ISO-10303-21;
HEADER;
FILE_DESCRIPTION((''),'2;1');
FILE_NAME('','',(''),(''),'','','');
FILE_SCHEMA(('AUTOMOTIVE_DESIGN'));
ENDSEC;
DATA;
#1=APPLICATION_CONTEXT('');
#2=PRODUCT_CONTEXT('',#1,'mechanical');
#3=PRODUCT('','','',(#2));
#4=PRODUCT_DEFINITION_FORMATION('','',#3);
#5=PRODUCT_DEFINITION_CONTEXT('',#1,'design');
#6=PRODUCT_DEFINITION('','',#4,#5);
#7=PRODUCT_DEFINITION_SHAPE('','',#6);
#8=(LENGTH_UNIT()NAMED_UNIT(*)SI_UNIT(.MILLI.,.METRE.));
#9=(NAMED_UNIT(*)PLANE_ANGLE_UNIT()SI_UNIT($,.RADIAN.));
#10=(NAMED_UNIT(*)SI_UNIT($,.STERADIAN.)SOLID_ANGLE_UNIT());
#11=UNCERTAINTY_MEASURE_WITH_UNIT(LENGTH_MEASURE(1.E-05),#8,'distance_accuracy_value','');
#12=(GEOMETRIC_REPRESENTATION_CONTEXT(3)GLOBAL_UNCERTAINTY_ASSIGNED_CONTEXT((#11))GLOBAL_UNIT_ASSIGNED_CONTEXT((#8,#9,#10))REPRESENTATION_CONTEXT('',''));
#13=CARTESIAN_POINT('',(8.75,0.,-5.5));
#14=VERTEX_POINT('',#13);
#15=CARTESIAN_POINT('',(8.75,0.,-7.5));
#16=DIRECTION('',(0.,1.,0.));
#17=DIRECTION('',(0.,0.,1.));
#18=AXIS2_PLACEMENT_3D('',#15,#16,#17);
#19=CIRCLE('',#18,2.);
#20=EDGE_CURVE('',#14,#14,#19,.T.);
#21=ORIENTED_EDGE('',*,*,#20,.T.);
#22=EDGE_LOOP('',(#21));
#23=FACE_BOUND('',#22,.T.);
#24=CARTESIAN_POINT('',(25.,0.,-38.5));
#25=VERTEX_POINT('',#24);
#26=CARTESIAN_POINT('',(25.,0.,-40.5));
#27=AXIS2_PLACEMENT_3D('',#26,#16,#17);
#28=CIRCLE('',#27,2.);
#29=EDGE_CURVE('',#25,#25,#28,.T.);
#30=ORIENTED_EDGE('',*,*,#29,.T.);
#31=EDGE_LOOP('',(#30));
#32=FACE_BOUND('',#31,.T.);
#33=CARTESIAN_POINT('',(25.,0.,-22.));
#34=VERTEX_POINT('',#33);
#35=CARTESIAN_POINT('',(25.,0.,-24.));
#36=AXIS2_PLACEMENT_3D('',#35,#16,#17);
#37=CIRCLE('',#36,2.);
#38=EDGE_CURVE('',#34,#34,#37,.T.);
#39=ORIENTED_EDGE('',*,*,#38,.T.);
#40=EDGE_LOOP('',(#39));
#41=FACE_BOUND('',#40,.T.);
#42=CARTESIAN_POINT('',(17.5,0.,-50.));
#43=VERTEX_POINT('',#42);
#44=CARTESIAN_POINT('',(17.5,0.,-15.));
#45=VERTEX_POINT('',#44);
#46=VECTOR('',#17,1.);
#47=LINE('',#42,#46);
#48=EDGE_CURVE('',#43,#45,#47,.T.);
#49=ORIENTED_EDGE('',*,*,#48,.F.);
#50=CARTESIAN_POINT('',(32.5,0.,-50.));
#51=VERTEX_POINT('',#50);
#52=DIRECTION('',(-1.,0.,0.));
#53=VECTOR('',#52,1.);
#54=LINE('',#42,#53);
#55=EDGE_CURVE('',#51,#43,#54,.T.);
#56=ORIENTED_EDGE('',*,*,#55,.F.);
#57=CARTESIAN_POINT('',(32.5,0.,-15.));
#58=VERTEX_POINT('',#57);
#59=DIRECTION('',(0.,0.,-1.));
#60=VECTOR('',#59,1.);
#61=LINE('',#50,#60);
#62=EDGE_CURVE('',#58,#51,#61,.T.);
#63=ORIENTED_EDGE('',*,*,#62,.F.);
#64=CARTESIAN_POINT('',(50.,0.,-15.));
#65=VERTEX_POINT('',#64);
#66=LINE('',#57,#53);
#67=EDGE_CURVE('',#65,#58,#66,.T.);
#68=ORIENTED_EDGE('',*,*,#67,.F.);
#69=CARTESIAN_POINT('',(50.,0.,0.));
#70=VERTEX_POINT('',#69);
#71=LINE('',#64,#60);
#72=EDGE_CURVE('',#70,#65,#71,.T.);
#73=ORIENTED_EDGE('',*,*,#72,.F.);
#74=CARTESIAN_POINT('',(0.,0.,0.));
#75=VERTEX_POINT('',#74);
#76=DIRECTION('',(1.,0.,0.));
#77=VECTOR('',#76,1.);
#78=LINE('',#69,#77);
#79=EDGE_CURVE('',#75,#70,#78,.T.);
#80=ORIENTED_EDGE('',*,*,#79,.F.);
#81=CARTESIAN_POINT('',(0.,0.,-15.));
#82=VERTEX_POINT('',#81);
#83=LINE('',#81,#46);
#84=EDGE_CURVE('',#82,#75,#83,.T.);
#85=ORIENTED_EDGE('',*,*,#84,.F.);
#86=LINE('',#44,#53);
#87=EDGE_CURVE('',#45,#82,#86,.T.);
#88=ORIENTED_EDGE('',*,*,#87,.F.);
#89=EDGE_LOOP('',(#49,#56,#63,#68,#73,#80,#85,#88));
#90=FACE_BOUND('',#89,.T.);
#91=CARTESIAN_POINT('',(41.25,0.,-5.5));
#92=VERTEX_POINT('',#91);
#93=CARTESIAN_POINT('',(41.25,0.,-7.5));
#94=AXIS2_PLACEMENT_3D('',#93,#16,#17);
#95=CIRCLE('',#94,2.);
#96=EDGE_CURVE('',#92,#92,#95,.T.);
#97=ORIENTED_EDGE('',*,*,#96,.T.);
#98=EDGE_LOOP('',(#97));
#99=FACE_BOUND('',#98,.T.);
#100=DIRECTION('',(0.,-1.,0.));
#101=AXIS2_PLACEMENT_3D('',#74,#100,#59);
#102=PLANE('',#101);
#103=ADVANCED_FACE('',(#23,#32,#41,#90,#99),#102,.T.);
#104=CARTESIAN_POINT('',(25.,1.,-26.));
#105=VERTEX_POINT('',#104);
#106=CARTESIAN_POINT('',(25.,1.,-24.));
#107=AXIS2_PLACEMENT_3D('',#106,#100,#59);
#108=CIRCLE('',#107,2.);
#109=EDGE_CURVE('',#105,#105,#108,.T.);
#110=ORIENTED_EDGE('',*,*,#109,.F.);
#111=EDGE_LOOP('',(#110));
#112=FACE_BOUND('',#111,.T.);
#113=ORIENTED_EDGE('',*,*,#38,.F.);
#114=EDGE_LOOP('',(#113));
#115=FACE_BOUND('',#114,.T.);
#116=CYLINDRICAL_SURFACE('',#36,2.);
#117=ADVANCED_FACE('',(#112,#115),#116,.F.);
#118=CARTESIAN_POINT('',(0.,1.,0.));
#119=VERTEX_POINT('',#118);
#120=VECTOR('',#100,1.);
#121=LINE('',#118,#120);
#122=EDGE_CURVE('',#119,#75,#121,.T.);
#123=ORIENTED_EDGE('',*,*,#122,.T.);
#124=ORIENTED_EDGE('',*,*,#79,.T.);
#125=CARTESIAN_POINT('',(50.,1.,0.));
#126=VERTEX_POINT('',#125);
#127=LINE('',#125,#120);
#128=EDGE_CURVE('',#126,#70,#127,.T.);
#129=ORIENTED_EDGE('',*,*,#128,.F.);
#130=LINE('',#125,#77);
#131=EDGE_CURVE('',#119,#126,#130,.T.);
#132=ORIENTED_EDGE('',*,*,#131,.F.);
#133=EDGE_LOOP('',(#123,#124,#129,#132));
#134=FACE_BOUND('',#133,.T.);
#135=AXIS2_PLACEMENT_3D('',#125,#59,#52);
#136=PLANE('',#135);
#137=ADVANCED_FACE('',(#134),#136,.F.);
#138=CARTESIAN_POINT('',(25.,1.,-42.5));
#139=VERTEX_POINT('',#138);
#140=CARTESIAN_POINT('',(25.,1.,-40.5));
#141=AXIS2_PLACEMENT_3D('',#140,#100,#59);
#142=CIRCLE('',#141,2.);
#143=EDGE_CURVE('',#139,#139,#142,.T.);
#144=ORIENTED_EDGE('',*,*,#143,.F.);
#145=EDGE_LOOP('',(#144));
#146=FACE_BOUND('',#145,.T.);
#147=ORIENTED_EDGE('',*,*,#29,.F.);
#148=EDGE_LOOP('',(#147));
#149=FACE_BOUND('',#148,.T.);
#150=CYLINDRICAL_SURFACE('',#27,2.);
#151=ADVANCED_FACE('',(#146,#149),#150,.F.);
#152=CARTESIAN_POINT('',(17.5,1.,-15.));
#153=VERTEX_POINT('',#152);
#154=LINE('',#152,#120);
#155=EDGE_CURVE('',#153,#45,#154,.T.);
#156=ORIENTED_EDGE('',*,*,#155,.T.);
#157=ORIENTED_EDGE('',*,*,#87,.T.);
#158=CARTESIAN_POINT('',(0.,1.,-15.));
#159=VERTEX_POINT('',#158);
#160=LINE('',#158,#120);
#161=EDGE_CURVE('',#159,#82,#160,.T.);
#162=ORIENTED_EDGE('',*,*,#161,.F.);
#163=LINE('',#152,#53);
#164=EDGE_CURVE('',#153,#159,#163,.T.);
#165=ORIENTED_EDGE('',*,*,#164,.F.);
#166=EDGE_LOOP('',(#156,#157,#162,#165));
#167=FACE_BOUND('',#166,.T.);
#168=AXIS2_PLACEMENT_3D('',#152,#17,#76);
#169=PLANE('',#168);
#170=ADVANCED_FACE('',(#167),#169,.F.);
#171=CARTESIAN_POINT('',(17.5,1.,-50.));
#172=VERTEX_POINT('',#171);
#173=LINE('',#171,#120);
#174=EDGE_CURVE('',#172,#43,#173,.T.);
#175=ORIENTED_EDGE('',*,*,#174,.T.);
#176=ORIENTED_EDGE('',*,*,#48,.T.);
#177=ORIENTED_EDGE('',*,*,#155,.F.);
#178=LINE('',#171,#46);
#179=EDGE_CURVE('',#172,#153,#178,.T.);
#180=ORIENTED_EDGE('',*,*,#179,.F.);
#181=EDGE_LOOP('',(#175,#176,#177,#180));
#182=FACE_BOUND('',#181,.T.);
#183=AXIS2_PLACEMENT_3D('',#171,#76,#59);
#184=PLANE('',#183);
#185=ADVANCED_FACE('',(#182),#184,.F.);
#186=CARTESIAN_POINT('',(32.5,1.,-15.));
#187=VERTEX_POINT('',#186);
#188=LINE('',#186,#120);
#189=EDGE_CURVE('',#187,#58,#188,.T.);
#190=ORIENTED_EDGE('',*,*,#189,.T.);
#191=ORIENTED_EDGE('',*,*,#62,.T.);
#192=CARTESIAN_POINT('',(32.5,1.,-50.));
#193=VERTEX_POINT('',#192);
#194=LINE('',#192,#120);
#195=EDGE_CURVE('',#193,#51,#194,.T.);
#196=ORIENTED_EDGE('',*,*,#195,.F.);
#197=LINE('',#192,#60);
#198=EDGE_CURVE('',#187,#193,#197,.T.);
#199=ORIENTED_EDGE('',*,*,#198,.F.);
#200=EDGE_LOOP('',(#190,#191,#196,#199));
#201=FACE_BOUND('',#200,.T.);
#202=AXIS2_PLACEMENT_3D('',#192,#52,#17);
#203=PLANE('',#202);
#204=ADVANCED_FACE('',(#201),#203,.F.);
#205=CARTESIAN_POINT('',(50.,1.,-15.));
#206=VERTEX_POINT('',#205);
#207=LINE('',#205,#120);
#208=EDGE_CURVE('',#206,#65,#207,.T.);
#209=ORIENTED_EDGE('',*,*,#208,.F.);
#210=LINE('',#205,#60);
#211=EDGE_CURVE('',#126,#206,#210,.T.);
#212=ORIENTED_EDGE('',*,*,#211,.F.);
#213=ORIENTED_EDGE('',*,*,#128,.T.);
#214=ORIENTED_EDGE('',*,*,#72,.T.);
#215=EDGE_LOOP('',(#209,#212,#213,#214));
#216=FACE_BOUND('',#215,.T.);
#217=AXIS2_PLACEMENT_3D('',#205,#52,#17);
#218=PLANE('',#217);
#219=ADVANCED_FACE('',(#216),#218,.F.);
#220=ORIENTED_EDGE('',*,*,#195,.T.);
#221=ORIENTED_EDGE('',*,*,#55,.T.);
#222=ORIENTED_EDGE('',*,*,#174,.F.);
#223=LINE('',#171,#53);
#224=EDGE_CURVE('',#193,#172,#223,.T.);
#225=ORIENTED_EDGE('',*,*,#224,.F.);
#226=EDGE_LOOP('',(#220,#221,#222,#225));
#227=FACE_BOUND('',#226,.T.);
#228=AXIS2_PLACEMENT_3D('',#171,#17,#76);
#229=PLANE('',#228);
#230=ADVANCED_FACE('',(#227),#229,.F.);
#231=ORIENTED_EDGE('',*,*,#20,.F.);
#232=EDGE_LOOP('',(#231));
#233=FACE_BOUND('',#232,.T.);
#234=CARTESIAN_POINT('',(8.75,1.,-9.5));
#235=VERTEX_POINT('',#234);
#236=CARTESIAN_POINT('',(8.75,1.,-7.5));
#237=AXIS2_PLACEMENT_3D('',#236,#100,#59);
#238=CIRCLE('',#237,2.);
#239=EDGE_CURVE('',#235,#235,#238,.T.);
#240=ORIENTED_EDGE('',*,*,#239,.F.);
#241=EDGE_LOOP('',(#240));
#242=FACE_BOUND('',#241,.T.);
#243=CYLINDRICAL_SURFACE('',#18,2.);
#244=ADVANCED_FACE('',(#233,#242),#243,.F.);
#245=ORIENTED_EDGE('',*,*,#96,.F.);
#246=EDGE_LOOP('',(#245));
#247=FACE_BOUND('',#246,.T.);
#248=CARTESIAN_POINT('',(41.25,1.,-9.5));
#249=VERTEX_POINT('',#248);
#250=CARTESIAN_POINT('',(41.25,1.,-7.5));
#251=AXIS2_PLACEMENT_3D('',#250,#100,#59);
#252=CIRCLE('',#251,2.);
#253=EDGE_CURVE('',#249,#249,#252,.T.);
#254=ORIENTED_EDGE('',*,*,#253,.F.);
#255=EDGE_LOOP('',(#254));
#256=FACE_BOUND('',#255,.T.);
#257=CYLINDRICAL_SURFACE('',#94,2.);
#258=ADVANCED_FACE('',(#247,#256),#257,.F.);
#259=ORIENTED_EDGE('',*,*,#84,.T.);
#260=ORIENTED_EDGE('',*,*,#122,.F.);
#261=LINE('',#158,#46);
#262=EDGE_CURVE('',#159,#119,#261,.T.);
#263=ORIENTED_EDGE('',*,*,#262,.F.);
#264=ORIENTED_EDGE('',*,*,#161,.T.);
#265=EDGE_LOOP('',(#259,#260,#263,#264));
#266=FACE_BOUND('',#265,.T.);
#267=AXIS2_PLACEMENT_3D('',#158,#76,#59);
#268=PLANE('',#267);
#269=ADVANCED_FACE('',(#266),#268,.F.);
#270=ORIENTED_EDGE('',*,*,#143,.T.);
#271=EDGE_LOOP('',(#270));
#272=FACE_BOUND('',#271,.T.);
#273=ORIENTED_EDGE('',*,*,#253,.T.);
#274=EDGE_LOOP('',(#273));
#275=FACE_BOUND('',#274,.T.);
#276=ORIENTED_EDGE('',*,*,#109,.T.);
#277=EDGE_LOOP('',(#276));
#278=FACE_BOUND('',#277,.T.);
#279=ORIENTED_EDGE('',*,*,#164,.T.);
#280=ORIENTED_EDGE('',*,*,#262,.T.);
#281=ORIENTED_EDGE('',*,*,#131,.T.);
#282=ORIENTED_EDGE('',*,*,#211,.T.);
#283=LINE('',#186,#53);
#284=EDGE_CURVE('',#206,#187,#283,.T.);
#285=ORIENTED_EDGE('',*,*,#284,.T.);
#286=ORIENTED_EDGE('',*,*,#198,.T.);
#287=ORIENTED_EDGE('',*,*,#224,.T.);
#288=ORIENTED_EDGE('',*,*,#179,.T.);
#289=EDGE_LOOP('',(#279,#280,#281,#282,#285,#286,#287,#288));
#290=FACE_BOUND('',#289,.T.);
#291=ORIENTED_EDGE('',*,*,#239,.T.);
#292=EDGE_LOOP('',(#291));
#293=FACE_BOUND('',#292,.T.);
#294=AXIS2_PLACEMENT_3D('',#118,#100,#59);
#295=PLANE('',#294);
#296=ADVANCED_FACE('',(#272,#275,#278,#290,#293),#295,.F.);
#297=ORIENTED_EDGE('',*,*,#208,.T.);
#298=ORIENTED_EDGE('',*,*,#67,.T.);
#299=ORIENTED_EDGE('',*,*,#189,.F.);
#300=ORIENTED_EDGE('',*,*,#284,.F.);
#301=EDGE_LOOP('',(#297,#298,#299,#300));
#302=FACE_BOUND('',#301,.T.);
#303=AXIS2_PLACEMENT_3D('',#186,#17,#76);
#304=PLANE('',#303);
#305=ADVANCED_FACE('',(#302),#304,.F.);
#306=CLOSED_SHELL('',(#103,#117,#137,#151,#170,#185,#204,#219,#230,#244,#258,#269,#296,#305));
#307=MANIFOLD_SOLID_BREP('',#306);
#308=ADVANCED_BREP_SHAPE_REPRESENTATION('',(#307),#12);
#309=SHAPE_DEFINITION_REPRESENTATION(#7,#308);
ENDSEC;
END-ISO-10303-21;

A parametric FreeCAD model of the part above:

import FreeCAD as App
import Part
import Sketcher

V = App.Vector
Q = App.Units.Quantity

doc = App.newDocument("Part")
body = doc.addObject("PartDesign::Body", "Body")

# Sketch on XZ plane
sketch1 = body.newObject("Sketcher::SketchObject", "Sketch")
sketch1.AttachmentSupport = (doc.getObject("XZ_Plane"), [""])
sketch1.MapMode = "FlatFace"
sketch1.addGeometry([
    Part.LineSegment(V(32.5, -50, 0), V(17.5, -50, 0)),  # 0
    Part.LineSegment(V(17.5, -50, 0), V(17.5, -15, 0)),  # 1
    Part.LineSegment(V(17.5, -15, 0), V(0, -15, 0)),  # 2
    Part.LineSegment(V(0, -15, 0), V(0, 0, 0)),  # 3
    Part.LineSegment(V(0, 0, 0), V(50, 0, 0)),  # 4
    Part.LineSegment(V(50, 0, 0), V(50, -15, 0)),  # 5
    Part.LineSegment(V(50, -15, 0), V(32.5, -15, 0)),  # 6
    Part.LineSegment(V(32.5, -15, 0), V(32.5, -50, 0)),  # 7
], False)
sketch1.addConstraint([
    Sketcher.Constraint("Coincident", 0, 2, 1, 1),
    Sketcher.Constraint("Coincident", 1, 2, 2, 1),
    Sketcher.Constraint("Coincident", 2, 2, 3, 1),
    Sketcher.Constraint("Coincident", 3, 2, 4, 1),
    Sketcher.Constraint("Coincident", 4, 2, 5, 1),
    Sketcher.Constraint("Coincident", 5, 2, 6, 1),
    Sketcher.Constraint("Coincident", 6, 2, 7, 1),
    Sketcher.Constraint("Coincident", 7, 2, 0, 1),
    Sketcher.Constraint("Horizontal", 0),
    Sketcher.Constraint("Vertical", 1),
    Sketcher.Constraint("Horizontal", 2),
    Sketcher.Constraint("Vertical", 3),
    Sketcher.Constraint("Horizontal", 4),
    Sketcher.Constraint("Vertical", 5),
    Sketcher.Constraint("Horizontal", 6),
    Sketcher.Constraint("Vertical", 7),
    Sketcher.Constraint("Coincident", 3, 2, -1, 1),
    Sketcher.Constraint("Horizontal", 2, 2, 5, 2),
    Sketcher.Constraint("Equal", 2, 6),
    Sketcher.Constraint("Equal", 0, 3),
    Sketcher.Constraint("DistanceX", 0, 2, 0, 1, Q("15 mm")),
    Sketcher.Constraint("DistanceX", 4, 1, 4, 2, Q("50 mm")),
    Sketcher.Constraint("DistanceY", 1, 1, 1, 2, Q("35 mm")),
])
pad1 = body.newObject("PartDesign::Pad", "Pad")
pad1.Profile = sketch1
pad1.Length = 1
pad1.Reversed = True

# Sketch on XZ plane
sketch2 = body.newObject("Sketcher::SketchObject", "Sketch001")
sketch2.AttachmentSupport = (doc.getObject("XZ_Plane"), [""])
sketch2.MapMode = "FlatFace"
sketch2.AttachmentOffset = App.Placement(V(0, 0, -1), App.Rotation())
sketch2.addGeometry([
    Part.Circle(V(41.25, -7.5, 0), V(0, 0, 1), 2),
    Part.Circle(V(25, -40.5, 0), V(0, 0, 1), 2),
    Part.Circle(V(25, -24, 0), V(0, 0, 1), 2),
    Part.Circle(V(8.75, -7.5, 0), V(0, 0, 1), 2),
], False)
sketch2.addConstraint([
    Sketcher.Constraint("Equal", 0, 1),
    Sketcher.Constraint("Equal", 1, 2),
    Sketcher.Constraint("Equal", 2, 3),
    Sketcher.Constraint("Horizontal", 0, 3, 3, 3),
    Sketcher.Constraint("Vertical", 1, 3, 2, 3),
    Sketcher.Constraint("Diameter", 0, Q("4 mm")),
    Sketcher.Constraint("DistanceX", -1, 1, 1, 3, Q("25 mm")),
    Sketcher.Constraint("DistanceY", 2, 3, -1, 1, Q("24 mm")),
    Sketcher.Constraint("DistanceY", 1, 3, 0, 3, Q("33 mm")),
    Sketcher.Constraint("DistanceY", 0, 3, -1, 1, Q("7.5 mm")),
    Sketcher.Constraint("DistanceX", 3, 3, 0, 3, Q("32.5 mm")),
    Sketcher.Constraint("DistanceX", -1, 1, 0, 3, Q("41.25 mm")),
])
pocket1 = body.newObject("PartDesign::Pocket", "Pocket")
pocket1.Profile = sketch2
pocket1.Type = "ThroughAll"
pocket1.Midplane = True

doc.recompute()
